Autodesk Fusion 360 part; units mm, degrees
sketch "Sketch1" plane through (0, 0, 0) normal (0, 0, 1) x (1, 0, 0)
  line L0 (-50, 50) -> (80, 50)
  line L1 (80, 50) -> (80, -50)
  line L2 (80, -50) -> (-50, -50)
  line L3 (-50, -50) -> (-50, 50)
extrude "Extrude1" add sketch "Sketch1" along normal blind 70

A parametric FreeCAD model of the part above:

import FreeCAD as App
import Part
import Sketcher

V = App.Vector
Q = App.Units.Quantity

doc = App.newDocument("Part")
params = doc.addObject("Spreadsheet::Sheet", "Params")
for row, (alias, value) in enumerate([
    ("sketch1_height", "3.937 in"),
    ("pad1_length", "2.7559055 in"),
], start=1):
    params.set(f"A{row}", alias)
    params.set(f"B{row}", "=" + value)
    params.setAlias(f"B{row}", alias)

body = doc.addObject("PartDesign::Body", "Body")

# Sketch on XY plane
sketch1 = body.newObject("Sketcher::SketchObject", "Sketch")
sketch1.AttachmentSupport = (doc.getObject("XY_Plane"), [""])
sketch1.MapMode = "FlatFace"
sketch1.addGeometry([
    Part.LineSegment(V(80, 50, 0), V(-50, 50, 0)),
    Part.LineSegment(V(-50, 50, 0), V(-50, -50, 0)),
    Part.LineSegment(V(-50, -50, 0), V(80, -50, 0)),
    Part.LineSegment(V(80, -50, 0), V(80, 50, 0)),
], False)
sketch1.addConstraint([
    Sketcher.Constraint("Coincident", 0, 2, 1, 1),
    Sketcher.Constraint("Coincident", 1, 2, 2, 1),
    Sketcher.Constraint("Coincident", 2, 2, 3, 1),
    Sketcher.Constraint("Coincident", 3, 2, 0, 1),
    Sketcher.Constraint("Horizontal", 0),
    Sketcher.Constraint("Vertical", 1),
    Sketcher.Constraint("Horizontal", 2),
    Sketcher.Constraint("Vertical", 3),
    Sketcher.Constraint("DistanceY", 1, 2, 1, 1, Q("3.937 in")),
    Sketcher.Constraint("DistanceX", 0, 2, 0, 1, Q("5.1181 in")),
    Sketcher.Constraint("DistanceX", 0, 2, -1, 1, Q("1.9685 in")),
    Sketcher.Constraint("DistanceY", -1, 1, 0, 2, Q("1.9685 in")),
])
sketch1.setExpression("Constraints[8]", "Params.sketch1_height")
pad1 = body.newObject("PartDesign::Pad", "Pad")
pad1.Profile = sketch1
pad1.setExpression("Length", "Params.pad1_length")

doc.recompute()
